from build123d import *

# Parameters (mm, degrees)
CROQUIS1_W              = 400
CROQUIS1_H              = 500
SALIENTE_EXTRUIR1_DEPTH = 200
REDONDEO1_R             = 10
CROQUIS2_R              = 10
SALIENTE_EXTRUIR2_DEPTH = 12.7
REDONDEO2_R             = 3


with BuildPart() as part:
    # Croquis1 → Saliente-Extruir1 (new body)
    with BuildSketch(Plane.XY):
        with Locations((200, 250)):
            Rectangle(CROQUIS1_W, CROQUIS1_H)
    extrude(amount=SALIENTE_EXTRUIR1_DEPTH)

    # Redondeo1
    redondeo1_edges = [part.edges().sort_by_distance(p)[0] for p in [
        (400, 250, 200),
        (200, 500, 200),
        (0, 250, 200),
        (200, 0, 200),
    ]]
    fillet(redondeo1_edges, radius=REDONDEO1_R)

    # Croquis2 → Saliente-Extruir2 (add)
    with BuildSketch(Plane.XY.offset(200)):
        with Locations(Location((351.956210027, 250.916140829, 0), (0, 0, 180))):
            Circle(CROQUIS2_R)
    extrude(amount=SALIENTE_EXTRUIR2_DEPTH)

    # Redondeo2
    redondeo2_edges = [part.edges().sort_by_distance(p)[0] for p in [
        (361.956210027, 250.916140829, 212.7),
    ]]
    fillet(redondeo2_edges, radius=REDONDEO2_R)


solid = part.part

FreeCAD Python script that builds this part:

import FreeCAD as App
import Part
import Sketcher
Q = App.Units.Quantity


def edges_at(feature, points):
    """Names of the edges that pass closest to the given points."""
    edges = feature.Shape.Edges
    near = lambda p: min(range(len(edges)), key=lambda i: edges[i].distToShape(Part.Vertex(*p))[0])
    return sorted({f"Edge{near(p) + 1}" for p in points})

doc = App.newDocument("Part")
body = doc.addObject("PartDesign::Body", "Body")

sketch1 = body.newObject("Sketcher::SketchObject", "Sketch")
sketch1.AttachmentSupport = (doc.getObject("XY_Plane"), [""])
sketch1.MapMode = "FlatFace"
sketch1.addGeometry(Part.LineSegment(App.Vector(0, 500, 0), App.Vector(0, 0, 0)), False)
sketch1.addGeometry(Part.LineSegment(App.Vector(0, 0, 0), App.Vector(400, 0, 0)), False)
sketch1.addGeometry(Part.LineSegment(App.Vector(400, 0, 0), App.Vector(400, 500, 0)), False)
sketch1.addGeometry(Part.LineSegment(App.Vector(400, 500, 0), App.Vector(0, 500, 0)), False)
sketch1.addConstraint(Sketcher.Constraint("Coincident", 0, 2, 1, 1))
sketch1.addConstraint(Sketcher.Constraint("Coincident", 1, 2, 2, 1))
sketch1.addConstraint(Sketcher.Constraint("Coincident", 2, 2, 3, 1))
sketch1.addConstraint(Sketcher.Constraint("Coincident", 3, 2, 0, 1))
sketch1.addConstraint(Sketcher.Constraint("Vertical", 0))
sketch1.addConstraint(Sketcher.Constraint("Horizontal", 1))
sketch1.addConstraint(Sketcher.Constraint("Vertical", 2))
sketch1.addConstraint(Sketcher.Constraint("Horizontal", 3))
sketch1.addConstraint(Sketcher.Constraint("Coincident", 0, 2, -1, 1))
sketch1.addConstraint(Sketcher.Constraint("DistanceX", 1, 1, 1, 2, Q("400 mm")))
sketch1.addConstraint(Sketcher.Constraint("DistanceY", 0, 2, 0, 1, Q("500 mm")))
pad1 = body.newObject("PartDesign::Pad", "Pad")
pad1.Profile = sketch1
pad1.Length = 200
doc.recompute()

fillet = body.newObject("PartDesign::Fillet", "Fillet")
fillet.Base = (pad1, edges_at(pad1, [
    (400, 250, 200),
    (200, 500, 200),
    (0, 250, 200),
    (200, 0, 200),
]))
fillet.Radius = 10

sketch2 = body.newObject("Sketcher::SketchObject", "Sketch001")
sketch2.AttachmentSupport = (doc.getObject("XY_Plane"), [""])
sketch2.MapMode = "FlatFace"
sketch2.AttachmentOffset = App.Placement(App.Vector(0, 0, 200), App.Rotation())
sketch2.addGeometry(Part.Circle(App.Vector(352, 251, 0), App.Vector(0, 0, 1), 10), False)
sketch2.addConstraint(Sketcher.Constraint("Diameter", 0, Q("20 mm")))
sketch2.addConstraint(Sketcher.Constraint("DistanceX", -1, 1, 0, 3, Q("351.95621 mm")))
sketch2.addConstraint(Sketcher.Constraint("DistanceY", -1, 1, 0, 3, Q("250.916141 mm")))
pad2 = body.newObject("PartDesign::Pad", "Pad001")
pad2.Profile = sketch2
pad2.Length = 12.7
doc.recompute()

fillet2 = body.newObject("PartDesign::Fillet", "Fillet001")
fillet2.Base = (pad2, edges_at(pad2, [(361.956, 250.916, 212.7)]))
fillet2.Radius = 3

doc.recompute()
